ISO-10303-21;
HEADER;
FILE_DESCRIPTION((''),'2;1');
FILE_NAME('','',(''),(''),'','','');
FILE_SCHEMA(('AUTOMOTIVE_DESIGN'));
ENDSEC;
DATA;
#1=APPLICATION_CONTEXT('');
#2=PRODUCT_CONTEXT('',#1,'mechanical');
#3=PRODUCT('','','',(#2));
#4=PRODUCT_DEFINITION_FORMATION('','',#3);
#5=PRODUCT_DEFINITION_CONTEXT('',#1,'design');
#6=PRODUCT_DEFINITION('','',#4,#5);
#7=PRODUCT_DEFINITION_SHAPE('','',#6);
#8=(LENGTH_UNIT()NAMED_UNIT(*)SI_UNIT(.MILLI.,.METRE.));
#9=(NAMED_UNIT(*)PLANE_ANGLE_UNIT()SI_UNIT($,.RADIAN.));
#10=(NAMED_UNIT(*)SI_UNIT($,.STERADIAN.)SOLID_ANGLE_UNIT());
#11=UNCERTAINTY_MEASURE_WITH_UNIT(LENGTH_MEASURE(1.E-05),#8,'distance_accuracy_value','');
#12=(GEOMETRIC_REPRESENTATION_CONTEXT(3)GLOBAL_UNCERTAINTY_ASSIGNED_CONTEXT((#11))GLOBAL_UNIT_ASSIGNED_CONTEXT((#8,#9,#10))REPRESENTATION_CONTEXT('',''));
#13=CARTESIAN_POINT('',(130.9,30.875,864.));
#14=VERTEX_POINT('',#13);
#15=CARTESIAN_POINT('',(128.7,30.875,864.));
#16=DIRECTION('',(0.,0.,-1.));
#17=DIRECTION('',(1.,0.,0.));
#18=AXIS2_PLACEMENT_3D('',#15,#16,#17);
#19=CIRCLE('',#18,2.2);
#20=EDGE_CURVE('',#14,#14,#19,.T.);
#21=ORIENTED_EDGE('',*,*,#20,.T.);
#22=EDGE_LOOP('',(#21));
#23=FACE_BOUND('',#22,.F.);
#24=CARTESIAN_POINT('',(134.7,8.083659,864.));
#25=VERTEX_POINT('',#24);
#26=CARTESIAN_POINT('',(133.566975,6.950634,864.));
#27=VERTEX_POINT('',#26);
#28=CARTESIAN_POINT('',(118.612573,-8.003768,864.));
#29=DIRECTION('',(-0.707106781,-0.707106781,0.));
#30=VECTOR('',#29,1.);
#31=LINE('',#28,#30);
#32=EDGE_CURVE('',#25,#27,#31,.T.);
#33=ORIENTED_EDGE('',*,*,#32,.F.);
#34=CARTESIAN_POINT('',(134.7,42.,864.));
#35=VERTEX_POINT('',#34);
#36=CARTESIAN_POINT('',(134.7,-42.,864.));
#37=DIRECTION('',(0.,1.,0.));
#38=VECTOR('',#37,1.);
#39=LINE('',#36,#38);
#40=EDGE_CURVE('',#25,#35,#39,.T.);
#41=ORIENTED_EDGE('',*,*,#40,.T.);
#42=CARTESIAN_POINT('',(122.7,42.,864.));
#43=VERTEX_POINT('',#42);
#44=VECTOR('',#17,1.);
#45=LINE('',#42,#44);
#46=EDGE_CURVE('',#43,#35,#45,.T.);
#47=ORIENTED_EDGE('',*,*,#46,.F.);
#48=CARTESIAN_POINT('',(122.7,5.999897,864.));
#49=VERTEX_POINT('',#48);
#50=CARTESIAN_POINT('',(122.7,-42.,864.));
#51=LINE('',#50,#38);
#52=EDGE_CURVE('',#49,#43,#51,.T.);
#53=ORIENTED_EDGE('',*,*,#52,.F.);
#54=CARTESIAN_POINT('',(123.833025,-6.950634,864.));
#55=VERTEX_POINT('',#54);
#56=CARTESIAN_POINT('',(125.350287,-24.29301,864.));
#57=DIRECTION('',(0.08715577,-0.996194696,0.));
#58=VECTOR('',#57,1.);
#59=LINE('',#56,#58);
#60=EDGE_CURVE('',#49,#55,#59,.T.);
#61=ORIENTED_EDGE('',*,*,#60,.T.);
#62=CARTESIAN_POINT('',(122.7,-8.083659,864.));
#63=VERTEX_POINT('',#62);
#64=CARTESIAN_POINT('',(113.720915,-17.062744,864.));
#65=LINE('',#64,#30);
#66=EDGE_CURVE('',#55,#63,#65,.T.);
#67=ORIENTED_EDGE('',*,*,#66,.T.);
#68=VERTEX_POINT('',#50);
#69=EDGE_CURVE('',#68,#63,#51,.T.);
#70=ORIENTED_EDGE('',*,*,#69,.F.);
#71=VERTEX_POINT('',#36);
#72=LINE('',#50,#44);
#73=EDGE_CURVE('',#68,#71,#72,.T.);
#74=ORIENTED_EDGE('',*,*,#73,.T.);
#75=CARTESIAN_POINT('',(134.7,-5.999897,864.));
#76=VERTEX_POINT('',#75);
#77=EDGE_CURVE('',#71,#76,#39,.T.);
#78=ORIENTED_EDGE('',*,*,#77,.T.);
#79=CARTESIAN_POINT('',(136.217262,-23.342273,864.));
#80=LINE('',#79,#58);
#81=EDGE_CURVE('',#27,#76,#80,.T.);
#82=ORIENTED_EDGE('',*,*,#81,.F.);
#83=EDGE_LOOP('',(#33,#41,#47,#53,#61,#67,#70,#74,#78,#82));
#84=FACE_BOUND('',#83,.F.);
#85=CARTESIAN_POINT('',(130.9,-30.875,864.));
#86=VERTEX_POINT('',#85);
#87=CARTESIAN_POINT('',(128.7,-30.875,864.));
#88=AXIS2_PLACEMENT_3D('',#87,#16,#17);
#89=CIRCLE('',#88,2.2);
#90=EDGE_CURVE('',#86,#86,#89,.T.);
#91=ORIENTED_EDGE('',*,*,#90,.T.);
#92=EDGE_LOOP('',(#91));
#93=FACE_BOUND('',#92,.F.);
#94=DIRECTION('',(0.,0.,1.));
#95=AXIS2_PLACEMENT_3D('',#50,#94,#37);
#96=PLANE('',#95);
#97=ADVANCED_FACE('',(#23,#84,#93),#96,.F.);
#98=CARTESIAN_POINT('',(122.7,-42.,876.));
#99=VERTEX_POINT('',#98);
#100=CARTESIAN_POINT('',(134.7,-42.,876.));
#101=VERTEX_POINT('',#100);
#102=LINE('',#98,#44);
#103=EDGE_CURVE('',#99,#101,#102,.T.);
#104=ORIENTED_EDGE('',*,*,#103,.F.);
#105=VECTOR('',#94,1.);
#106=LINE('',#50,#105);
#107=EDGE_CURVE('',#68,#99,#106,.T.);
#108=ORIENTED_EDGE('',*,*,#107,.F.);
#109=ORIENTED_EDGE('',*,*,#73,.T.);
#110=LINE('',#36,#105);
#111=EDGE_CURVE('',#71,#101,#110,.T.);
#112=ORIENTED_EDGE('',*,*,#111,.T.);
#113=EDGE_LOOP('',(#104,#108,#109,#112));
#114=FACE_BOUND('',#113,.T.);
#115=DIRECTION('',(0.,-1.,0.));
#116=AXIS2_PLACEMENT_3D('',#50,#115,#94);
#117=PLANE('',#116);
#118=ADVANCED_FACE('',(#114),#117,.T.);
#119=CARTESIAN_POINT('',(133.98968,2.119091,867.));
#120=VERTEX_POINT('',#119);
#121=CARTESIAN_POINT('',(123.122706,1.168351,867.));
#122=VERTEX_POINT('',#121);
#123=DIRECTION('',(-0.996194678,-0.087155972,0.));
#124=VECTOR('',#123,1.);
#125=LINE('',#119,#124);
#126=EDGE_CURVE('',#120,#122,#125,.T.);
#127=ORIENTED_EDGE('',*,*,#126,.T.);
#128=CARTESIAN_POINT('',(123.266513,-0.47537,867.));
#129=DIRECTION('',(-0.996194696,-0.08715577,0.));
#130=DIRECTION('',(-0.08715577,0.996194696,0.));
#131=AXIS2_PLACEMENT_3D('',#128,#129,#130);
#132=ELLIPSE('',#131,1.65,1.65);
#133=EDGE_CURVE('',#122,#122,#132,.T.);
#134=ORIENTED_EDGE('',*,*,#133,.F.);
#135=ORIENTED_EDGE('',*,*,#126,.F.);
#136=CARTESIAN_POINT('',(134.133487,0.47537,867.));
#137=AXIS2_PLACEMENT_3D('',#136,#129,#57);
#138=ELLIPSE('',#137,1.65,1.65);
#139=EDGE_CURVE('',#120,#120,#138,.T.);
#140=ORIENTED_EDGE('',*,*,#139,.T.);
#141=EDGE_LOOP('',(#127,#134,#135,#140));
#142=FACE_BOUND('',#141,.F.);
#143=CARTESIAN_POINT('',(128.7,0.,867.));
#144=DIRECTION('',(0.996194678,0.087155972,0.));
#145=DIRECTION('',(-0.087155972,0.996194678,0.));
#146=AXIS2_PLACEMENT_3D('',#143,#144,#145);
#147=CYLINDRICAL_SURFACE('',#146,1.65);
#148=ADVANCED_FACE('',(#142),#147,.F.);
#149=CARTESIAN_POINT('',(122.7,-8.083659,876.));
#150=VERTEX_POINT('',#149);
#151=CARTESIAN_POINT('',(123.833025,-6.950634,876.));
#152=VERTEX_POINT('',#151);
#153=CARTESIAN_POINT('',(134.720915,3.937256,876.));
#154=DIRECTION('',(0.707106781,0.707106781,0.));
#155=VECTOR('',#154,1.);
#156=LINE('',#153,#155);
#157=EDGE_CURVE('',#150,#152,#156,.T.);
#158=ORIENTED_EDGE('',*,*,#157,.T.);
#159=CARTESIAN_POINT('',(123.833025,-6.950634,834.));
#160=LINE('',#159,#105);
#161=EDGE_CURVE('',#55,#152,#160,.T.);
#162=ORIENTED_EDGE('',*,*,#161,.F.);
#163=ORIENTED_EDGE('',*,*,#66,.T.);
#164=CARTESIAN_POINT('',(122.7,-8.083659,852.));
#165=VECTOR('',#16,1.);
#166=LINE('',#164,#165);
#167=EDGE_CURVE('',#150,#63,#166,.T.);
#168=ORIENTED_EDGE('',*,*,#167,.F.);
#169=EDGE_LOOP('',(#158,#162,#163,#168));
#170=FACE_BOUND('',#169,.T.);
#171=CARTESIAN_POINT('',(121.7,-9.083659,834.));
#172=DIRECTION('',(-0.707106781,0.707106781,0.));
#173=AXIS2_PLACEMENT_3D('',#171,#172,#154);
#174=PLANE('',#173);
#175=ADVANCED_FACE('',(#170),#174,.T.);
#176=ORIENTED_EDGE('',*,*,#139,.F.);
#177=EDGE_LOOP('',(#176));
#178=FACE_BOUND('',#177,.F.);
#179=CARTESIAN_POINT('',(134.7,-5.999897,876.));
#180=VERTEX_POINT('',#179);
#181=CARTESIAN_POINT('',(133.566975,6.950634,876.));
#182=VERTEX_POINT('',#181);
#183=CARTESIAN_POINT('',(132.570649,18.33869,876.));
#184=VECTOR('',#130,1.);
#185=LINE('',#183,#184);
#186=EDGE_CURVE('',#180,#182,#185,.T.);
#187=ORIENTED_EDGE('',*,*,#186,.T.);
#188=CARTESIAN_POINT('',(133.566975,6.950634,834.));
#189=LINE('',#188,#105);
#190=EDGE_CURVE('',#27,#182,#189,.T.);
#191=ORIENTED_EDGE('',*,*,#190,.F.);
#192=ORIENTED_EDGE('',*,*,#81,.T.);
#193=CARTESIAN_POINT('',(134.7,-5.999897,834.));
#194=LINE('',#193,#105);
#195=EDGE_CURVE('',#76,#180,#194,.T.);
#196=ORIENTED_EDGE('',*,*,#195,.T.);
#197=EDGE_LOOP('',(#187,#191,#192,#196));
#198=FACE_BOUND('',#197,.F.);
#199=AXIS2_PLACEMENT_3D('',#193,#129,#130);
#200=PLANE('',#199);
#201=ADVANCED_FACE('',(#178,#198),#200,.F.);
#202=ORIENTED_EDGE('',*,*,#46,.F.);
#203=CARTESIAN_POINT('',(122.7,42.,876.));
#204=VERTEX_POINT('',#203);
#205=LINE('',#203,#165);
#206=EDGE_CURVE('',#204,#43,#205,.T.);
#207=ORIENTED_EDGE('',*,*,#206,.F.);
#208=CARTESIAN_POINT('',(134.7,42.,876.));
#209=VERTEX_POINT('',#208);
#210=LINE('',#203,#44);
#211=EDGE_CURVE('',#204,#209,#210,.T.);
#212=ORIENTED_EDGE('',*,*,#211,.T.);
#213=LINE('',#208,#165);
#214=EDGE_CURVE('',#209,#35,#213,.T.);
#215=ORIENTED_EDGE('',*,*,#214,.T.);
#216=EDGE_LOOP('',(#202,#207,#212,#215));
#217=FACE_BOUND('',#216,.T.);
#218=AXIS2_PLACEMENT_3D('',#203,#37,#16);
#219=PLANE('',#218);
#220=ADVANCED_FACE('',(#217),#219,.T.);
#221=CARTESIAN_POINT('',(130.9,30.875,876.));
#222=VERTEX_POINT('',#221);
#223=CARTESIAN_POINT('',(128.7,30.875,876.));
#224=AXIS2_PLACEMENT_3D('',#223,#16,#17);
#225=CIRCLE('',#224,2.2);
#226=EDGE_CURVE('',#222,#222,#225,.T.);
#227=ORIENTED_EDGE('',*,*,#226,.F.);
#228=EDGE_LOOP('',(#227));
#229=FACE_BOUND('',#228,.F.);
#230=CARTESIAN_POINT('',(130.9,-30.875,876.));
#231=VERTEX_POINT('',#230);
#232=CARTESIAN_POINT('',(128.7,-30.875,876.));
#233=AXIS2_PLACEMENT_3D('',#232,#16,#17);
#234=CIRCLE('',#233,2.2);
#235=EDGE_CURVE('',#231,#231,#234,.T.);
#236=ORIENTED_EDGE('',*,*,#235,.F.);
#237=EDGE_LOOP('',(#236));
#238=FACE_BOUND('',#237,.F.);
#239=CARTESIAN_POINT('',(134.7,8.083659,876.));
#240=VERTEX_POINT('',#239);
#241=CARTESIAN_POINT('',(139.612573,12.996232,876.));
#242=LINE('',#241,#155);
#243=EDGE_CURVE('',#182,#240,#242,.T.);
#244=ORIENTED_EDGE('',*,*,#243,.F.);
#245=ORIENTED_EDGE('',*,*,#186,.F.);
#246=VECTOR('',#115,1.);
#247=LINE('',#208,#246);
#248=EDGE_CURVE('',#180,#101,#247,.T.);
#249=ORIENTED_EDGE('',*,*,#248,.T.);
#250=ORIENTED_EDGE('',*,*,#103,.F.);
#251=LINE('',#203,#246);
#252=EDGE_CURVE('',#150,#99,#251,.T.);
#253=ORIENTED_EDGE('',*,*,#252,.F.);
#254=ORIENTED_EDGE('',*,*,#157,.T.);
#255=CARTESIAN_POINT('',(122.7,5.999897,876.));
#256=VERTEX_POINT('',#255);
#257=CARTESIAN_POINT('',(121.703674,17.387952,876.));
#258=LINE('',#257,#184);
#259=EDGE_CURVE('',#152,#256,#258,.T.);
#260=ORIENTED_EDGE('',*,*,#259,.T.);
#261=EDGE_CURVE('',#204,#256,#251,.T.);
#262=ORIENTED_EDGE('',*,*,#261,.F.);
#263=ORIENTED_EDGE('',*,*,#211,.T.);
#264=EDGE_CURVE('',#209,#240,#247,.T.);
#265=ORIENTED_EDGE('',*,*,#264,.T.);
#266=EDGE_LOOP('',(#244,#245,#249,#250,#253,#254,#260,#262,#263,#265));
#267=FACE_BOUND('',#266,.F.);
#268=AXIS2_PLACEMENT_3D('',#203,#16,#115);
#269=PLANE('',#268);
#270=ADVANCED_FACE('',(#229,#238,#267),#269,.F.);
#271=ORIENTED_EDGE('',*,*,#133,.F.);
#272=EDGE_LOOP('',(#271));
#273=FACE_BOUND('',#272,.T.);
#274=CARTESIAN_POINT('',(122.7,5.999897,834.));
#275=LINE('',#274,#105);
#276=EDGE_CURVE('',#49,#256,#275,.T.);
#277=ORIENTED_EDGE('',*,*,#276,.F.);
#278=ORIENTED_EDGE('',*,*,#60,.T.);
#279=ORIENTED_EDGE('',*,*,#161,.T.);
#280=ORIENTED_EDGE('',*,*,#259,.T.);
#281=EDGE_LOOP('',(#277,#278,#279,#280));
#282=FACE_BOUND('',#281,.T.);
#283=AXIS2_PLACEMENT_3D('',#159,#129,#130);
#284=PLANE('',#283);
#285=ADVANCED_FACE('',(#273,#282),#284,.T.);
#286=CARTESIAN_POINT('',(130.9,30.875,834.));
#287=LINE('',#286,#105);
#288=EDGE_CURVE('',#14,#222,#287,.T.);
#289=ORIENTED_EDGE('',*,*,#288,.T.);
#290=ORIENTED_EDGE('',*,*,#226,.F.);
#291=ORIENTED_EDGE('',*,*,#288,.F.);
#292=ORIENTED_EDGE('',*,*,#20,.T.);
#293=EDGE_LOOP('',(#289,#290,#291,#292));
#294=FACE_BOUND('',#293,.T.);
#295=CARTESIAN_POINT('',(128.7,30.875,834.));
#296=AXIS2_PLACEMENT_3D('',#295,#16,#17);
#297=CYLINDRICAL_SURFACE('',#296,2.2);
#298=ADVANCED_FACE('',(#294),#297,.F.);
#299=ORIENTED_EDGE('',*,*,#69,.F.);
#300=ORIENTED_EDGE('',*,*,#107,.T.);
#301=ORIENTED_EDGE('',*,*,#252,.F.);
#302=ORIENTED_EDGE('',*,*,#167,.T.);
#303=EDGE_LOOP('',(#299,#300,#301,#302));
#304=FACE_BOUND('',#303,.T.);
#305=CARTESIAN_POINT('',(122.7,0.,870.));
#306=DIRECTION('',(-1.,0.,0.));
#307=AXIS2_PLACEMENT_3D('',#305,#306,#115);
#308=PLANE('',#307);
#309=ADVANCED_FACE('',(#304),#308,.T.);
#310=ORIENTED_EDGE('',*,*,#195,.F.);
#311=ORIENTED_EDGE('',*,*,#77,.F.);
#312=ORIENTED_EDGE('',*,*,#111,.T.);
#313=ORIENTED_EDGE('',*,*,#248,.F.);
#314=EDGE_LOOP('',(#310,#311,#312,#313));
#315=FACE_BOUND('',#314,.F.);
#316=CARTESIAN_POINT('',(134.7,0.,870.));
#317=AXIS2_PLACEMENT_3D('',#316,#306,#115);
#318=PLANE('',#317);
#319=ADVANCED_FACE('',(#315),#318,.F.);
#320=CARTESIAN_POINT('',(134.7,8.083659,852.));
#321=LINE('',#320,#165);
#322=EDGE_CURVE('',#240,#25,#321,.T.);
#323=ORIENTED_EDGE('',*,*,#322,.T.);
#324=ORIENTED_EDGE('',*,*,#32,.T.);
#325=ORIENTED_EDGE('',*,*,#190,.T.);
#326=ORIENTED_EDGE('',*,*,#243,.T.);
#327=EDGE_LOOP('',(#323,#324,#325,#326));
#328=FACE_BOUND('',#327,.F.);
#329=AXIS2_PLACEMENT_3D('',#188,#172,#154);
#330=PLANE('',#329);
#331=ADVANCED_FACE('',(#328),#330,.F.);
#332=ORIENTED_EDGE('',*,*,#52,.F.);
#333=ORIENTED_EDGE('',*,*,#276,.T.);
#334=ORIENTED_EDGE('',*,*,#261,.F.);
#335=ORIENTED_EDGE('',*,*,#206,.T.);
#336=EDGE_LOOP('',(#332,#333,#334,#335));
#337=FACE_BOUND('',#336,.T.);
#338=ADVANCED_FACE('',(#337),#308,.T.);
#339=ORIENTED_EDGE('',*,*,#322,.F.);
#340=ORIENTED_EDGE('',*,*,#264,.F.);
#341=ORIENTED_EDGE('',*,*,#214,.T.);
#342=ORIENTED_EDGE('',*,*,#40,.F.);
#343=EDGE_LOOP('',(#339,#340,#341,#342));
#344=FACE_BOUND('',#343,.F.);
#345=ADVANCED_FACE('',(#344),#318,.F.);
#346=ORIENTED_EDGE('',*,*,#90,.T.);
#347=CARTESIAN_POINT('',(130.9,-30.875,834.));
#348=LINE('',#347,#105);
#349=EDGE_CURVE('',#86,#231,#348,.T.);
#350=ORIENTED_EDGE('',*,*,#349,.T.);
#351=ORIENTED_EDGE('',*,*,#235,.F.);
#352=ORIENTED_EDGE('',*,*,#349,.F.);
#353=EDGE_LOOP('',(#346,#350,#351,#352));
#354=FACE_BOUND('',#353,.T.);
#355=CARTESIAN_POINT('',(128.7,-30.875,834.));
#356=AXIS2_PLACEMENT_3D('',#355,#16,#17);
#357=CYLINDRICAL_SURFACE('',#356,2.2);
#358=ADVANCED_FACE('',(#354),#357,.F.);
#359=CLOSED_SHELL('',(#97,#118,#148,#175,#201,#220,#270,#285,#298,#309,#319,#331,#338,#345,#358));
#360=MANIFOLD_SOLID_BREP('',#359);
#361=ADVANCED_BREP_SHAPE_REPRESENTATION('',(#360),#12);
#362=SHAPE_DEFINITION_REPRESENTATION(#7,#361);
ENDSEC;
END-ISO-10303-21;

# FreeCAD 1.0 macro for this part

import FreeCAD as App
import Part
import Sketcher
from FreeCAD import Vector
Q = App.Units.Quantity

doc = App.newDocument("Part")
params = doc.addObject("Spreadsheet::Sheet", "Params")
for row, (alias, value) in enumerate([
    ("sketch1_width", "84 mm"),
    ("sketch1_height", "12 mm"),
    ("pad1_length", "12 mm"),
    ("sketch2_diameter", "4.4 mm"),
    ("sketch2_width", "1 mm"),
    ("sketch2_length", "13 mm"),
    ("sketch3_diameter", "3.3 mm"),
], start=1):
    params.set(f"A{row}", alias)
    params.set(f"B{row}", "=" + value)
    params.setAlias(f"B{row}", alias)

body = doc.addObject("PartDesign::Body", "Body")

sketch1 = doc.addObject("Sketcher::SketchObject", "Sketch")
body.addObject(sketch1)
sketch1.AttachmentSupport = (doc.YZ_Plane, [""])
sketch1.MapMode = "FlatFace"
sketch1.addGeometry(Part.LineSegment(Vector(42, 30, 0), Vector(42, 42, 0)), False)
sketch1.addGeometry(Part.LineSegment(Vector(42, 42, 0), Vector(-42, 42, 0)), False)
sketch1.addGeometry(Part.LineSegment(Vector(-42, 42, 0), Vector(-42, 30, 0)), False)
sketch1.addGeometry(Part.LineSegment(Vector(-42, 30, 0), Vector(42, 30, 0)), False)
sketch1.addConstraint(Sketcher.Constraint("Coincident", 0, 2, 1, 1))
sketch1.addConstraint(Sketcher.Constraint("Coincident", 1, 2, 2, 1))
sketch1.addConstraint(Sketcher.Constraint("Coincident", 2, 2, 3, 1))
sketch1.addConstraint(Sketcher.Constraint("Coincident", 3, 2, 0, 1))
sketch1.addConstraint(Sketcher.Constraint("Vertical", 0))
sketch1.addConstraint(Sketcher.Constraint("Horizontal", 1))
sketch1.addConstraint(Sketcher.Constraint("Vertical", 2))
sketch1.addConstraint(Sketcher.Constraint("Horizontal", 3))
sketch1.addConstraint(Sketcher.Constraint("DistanceX", 1, 2, 1, 1, 84.0))
sketch1.addConstraint(Sketcher.Constraint("DistanceY", 0, 1, 0, 2, 12.0))
sketch1.addConstraint(Sketcher.Constraint("DistanceX", -1, 1, 0, 2, 42.0))
sketch1.addConstraint(Sketcher.Constraint("DistanceY", -1, 1, 0, 2, 42.0))
sketch1.setExpression("Constraints[8]", "Params.sketch1_width")
sketch1.setExpression("Constraints[9]", "Params.sketch1_height")
pad1 = doc.addObject("PartDesign::Pad", "Pad")
body.addObject(pad1)
pad1.Profile = sketch1
pad1.setExpression("Length", "Params.pad1_length")

sketch2 = doc.addObject("Sketcher::SketchObject", "Sketch001")
body.addObject(sketch2)
sketch2.AttachmentSupport = (doc.XY_Plane, [""])
sketch2.MapMode = "FlatFace"
sketch2.addGeometry(Part.Circle(Vector(6, 30.875, 0), Vector(0, 0, 1), 2.2), False)
sketch2.addGeometry(Part.Circle(Vector(6, -30.875, 0), Vector(0, 0, 1), 2.2), False)
sketch2.addGeometry(Part.LineSegment(Vector(13, 9.083659, 0), Vector(10.866975, 6.950634, 0)), False)
sketch2.addGeometry(Part.LineSegment(Vector(10.866975, 6.950634, 0), Vector(12, -5.999897, 0)), False)
sketch2.addGeometry(Part.LineSegment(Vector(12, -5.999897, 0), Vector(13, -5.999897, 0)), False)
sketch2.addGeometry(Part.LineSegment(Vector(13, -5.999897, 0), Vector(13, 9.083659, 0)), False)
sketch2.addGeometry(Part.LineSegment(Vector(0, 5.999897, 0), Vector(-1, 5.999897, 0)), False)
sketch2.addGeometry(Part.LineSegment(Vector(-1, 5.999897, 0), Vector(-1, -9.083659, 0)), False)
sketch2.addGeometry(Part.LineSegment(Vector(-1, -9.083659, 0), Vector(1.133025, -6.950634, 0)), False)
sketch2.addGeometry(Part.LineSegment(Vector(1.133025, -6.950634, 0), Vector(0, 5.999897, 0)), False)
sketch2.addConstraint(Sketcher.Constraint("Coincident", 2, 2, 3, 1))
sketch2.addConstraint(Sketcher.Constraint("Coincident", 3, 2, 4, 1))
sketch2.addConstraint(Sketcher.Constraint("Coincident", 4, 2, 5, 1))
sketch2.addConstraint(Sketcher.Constraint("Coincident", 5, 2, 2, 1))
sketch2.addConstraint(Sketcher.Constraint("Coincident", 6, 2, 7, 1))
sketch2.addConstraint(Sketcher.Constraint("Coincident", 7, 2, 8, 1))
sketch2.addConstraint(Sketcher.Constraint("Coincident", 8, 2, 9, 1))
sketch2.addConstraint(Sketcher.Constraint("Coincident", 9, 2, 6, 1))
sketch2.addConstraint(Sketcher.Constraint("Horizontal", 4))
sketch2.addConstraint(Sketcher.Constraint("Vertical", 5))
sketch2.addConstraint(Sketcher.Constraint("Horizontal", 6))
sketch2.addConstraint(Sketcher.Constraint("Vertical", 7))
sketch2.addConstraint(Sketcher.Constraint("Equal", 0, 1))
sketch2.addConstraint(Sketcher.Constraint("Symmetric", 0, 3, 1, 3, -1))
sketch2.addConstraint(Sketcher.Constraint("PointOnObject", 9, 2, -2))
sketch2.addConstraint(Sketcher.Constraint("Parallel", 2, 8))
sketch2.addConstraint(Sketcher.Constraint("Parallel", 3, 9))
sketch2.addConstraint(Sketcher.Constraint("Equal", 4, 6))
sketch2.addConstraint(Sketcher.Constraint("Equal", 5, 7))
sketch2.addConstraint(Sketcher.Constraint("Diameter", 0, 4.4))
sketch2.addConstraint(Sketcher.Constraint("DistanceX", 4, 1, 4, 2, 1.0))
sketch2.addConstraint(Sketcher.Constraint("Angle", 2, Q("-135 deg")))
sketch2.addConstraint(Sketcher.Constraint("Angle", 3, Q("-84.999998 deg")))
sketch2.addConstraint(Sketcher.Constraint("Distance", 3, 13.0))
sketch2.addConstraint(Sketcher.Constraint("DistanceX", -1, 1, 0, 3, 6.0))
sketch2.addConstraint(Sketcher.Constraint("DistanceX", -1, 1, 3, 2, 12.0))
sketch2.addConstraint(Sketcher.Constraint("DistanceY", 1, 3, 0, 3, 61.75))
sketch2.addConstraint(Sketcher.Constraint("DistanceY", -1, 1, 5, 2, 9.083659))
sketch2.addConstraint(Sketcher.Constraint("DistanceY", 7, 2, -1, 1, 9.083659))
sketch2.setExpression("Constraints[19]", "Params.sketch2_diameter")
sketch2.setExpression("Constraints[20]", "Params.sketch2_width")
sketch2.setExpression("Constraints[23]", "Params.sketch2_length")
pocket1 = doc.addObject("PartDesign::Pocket", "Pocket")
body.addObject(pocket1)
pocket1.Profile = sketch2
pocket1.Type = "ThroughAll"
pocket1.Midplane = True

sketch3 = doc.addObject("Sketcher::SketchObject", "Sketch002")
body.addObject(sketch3)
sketch3.Placement = App.Placement(Vector(6, 0, 0), App.Rotation(Vector(-0.087155972, 0.996194678, 0), Vector(0, 0, 1), Vector(0.996194678, 0.087155972, 0), "ZXY"))
sketch3.addGeometry(Part.Circle(Vector(0, 33, 0), Vector(0, 0, 1), 1.65), False)
sketch3.addConstraint(Sketcher.Constraint("PointOnObject", 0, 3, -2))
sketch3.addConstraint(Sketcher.Constraint("Diameter", 0, 3.3))
sketch3.addConstraint(Sketcher.Constraint("DistanceY", -1, 1, 0, 3, 33.0))
sketch3.setExpression("Constraints[1]", "Params.sketch3_diameter")
pocket2 = doc.addObject("PartDesign::Pocket", "Pocket001")
body.addObject(pocket2)
pocket2.Profile = sketch3
pocket2.Type = "ThroughAll"
pocket2.Midplane = True
body2 = doc.addObject("PartDesign::Body", "Body001")
doc.recompute()

body.Placement = App.Placement(Vector(122.7, 0, 834), App.Rotation(Vector(0, 0, 1), 0))
boolean = doc.addObject("PartDesign::Boolean", "Boolean")
body2.addObject(boolean)
boolean.Type = "Fuse"
boolean.addObjects([body])

doc.recompute()
